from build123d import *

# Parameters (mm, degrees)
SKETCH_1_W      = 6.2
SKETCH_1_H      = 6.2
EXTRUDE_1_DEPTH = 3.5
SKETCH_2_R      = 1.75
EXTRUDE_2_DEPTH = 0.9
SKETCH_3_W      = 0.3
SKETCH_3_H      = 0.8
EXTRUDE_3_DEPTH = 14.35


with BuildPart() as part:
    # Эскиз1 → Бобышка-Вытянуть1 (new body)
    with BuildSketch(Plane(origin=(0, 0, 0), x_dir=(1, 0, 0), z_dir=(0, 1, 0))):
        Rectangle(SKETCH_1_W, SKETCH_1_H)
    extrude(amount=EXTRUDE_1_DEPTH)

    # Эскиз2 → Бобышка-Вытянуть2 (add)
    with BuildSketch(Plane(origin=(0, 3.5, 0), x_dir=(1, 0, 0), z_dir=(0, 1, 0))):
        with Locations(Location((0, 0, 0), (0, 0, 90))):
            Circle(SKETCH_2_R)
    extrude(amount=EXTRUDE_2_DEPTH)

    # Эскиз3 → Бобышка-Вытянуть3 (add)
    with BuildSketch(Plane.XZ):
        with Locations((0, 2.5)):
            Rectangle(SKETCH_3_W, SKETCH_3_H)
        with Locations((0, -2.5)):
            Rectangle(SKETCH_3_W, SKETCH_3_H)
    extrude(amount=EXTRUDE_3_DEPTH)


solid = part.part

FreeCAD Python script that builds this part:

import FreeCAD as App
import Part
import Sketcher
from FreeCAD import Vector


def add_polygon(sketch, points):
    """Adds a closed chain of lines whose ends are joined by coincident constraints."""
    first, n = sketch.GeometryCount, len(points)
    for a, b in zip(points, points[1:] + points[:1]):
        sketch.addGeometry(Part.LineSegment(App.Vector(*a, 0), App.Vector(*b, 0)), False)
    for i in range(n):
        sketch.addConstraint(Sketcher.Constraint("Coincident", first + i, 2, first + (i + 1) % n, 1))

doc = App.newDocument("Part")
params = doc.addObject("Spreadsheet::Sheet", "Params")
for row, (alias, value) in enumerate([
    ("sketch1_width", "6.2 mm"),
    ("pad1_length", "3.5 mm"),
    ("sketch2_diameter", "3.5 mm"),
    ("pad2_length", "0.9 mm"),
    ("sketch3_width", "0.3 mm"),
    ("sketch3_height", "0.8 mm"),
    ("pad3_length", "14.35 mm"),
], start=1):
    params.set(f"A{row}", alias)
    params.set(f"B{row}", "=" + value)
    params.setAlias(f"B{row}", alias)

body = doc.addObject("PartDesign::Body", "Body")

sketch1 = body.newObject("Sketcher::SketchObject", "Sketch")
sketch1.AttachmentSupport = (doc.getObject("XZ_Plane"), [""])
sketch1.MapMode = "FlatFace"
add_polygon(sketch1, [(-3, -3), (-3, 3), (3, 3), (3, -3)])
sketch1.addConstraint([
    Sketcher.Constraint("Vertical", 0),
    Sketcher.Constraint("Horizontal", 1),
    Sketcher.Constraint("Vertical", 2),
    Sketcher.Constraint("Horizontal", 3),
    Sketcher.Constraint("Symmetric", 0, 2, 2, 2, -1, 1),
    Sketcher.Constraint("Equal", 3, 0),
    Sketcher.Constraint("DistanceX", 1, 1, 1, 2, 6.2),
])
sketch1.setExpression("Constraints[10]", "Params.sketch1_width")
pad1 = body.newObject("PartDesign::Pad", "Pad")
pad1.Profile = sketch1
pad1.setExpression("Length", "Params.pad1_length")
pad1.Reversed = True

sketch2 = body.newObject("Sketcher::SketchObject", "Sketch001")
sketch2.AttachmentSupport = (doc.getObject("XZ_Plane"), [""])
sketch2.MapMode = "FlatFace"
sketch2.AttachmentOffset = App.Placement(Vector(0, 0, -3.5), App.Rotation())
sketch2.addGeometry(Part.Circle(Vector(0, 0, 0), Vector(0, 0, 1), 1.8), False)
sketch2.addConstraint([
    Sketcher.Constraint("Coincident", 0, 3, -1, 1),
    Sketcher.Constraint("Diameter", 0, 3.5),
])
sketch2.setExpression("Constraints[1]", "Params.sketch2_diameter")
pad2 = body.newObject("PartDesign::Pad", "Pad001")
pad2.Profile = sketch2
pad2.setExpression("Length", "Params.pad2_length")
pad2.Reversed = True

sketch3 = body.newObject("Sketcher::SketchObject", "Sketch002")
sketch3.AttachmentSupport = (doc.getObject("XZ_Plane"), [""])
sketch3.MapMode = "FlatFace"
add_polygon(sketch3, [(-0.15, 2.9), (-0.15, 2.1), (0.15, 2.1), (0.15, 2.9)])
add_polygon(sketch3, [(-0.15, -2.1), (-0.15, -2.9), (0.15, -2.9), (0.15, -2.1)])
sketch3.addConstraint([
    Sketcher.Constraint("Vertical", 0),
    Sketcher.Constraint("Horizontal", 1),
    Sketcher.Constraint("Vertical", 2),
    Sketcher.Constraint("Horizontal", 3),
    Sketcher.Constraint("Vertical", 4),
    Sketcher.Constraint("Horizontal", 5),
    Sketcher.Constraint("Vertical", 6),
    Sketcher.Constraint("Horizontal", 7),
    Sketcher.Constraint("Symmetric", 2, 2, 4, 2, -1, 1),
    Sketcher.Constraint("Symmetric", 0, 2, 6, 2, -1, 1),
    Sketcher.Constraint("Vertical", 3, 2, 4, 2),
    Sketcher.Constraint("DistanceX", 1, 1, 1, 2, 0.3),
    Sketcher.Constraint("DistanceY", 0, 2, 0, 1, 0.8),
    Sketcher.Constraint("DistanceY", 4, 2, 0, 2, 5.0),
])
sketch3.setExpression("Constraints[19]", "Params.sketch3_width")
sketch3.setExpression("Constraints[20]", "Params.sketch3_height")
pad3 = body.newObject("PartDesign::Pad", "Pad002")
pad3.Profile = sketch3
pad3.setExpression("Length", "Params.pad3_length")

doc.recompute()
